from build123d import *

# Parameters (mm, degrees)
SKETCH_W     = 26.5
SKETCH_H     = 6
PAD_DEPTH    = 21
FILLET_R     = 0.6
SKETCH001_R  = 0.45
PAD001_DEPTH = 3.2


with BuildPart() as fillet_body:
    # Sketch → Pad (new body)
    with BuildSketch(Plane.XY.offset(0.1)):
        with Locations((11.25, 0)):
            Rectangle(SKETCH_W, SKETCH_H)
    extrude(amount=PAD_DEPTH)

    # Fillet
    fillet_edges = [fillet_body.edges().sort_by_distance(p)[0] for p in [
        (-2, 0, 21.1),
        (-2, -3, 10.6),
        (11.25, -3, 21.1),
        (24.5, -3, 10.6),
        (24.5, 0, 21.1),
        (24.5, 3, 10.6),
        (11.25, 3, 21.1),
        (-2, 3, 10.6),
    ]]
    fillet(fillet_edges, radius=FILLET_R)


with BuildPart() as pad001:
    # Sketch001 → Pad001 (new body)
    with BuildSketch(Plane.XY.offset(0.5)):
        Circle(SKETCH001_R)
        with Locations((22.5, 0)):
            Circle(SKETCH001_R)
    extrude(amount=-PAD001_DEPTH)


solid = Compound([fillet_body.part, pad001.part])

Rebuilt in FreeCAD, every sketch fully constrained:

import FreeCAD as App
import Part
import Sketcher


def edges_at(feature, points):
    """Names of the edges that pass closest to the given points."""
    edges = feature.Shape.Edges
    near = lambda p: min(range(len(edges)), key=lambda i: edges[i].distToShape(Part.Vertex(*p))[0])
    return sorted({f"Edge{near(p) + 1}" for p in points})

doc = App.newDocument("Part")
body = doc.addObject("PartDesign::Body", "Body")

sketch1 = body.newObject("Sketcher::SketchObject", "Sketch")
sketch1.AttachmentSupport = (doc.getObject("XY_Plane"), [""])
sketch1.MapMode = "FlatFace"
sketch1.AttachmentOffset = App.Placement(App.Vector(0, 0, 0.1), App.Rotation())
sketch1.addGeometry([
    Part.LineSegment(App.Vector(-2, 3, 0), App.Vector(-2, -3, 0)),
    Part.LineSegment(App.Vector(-2, -3, 0), App.Vector(24, -3, 0)),
    Part.LineSegment(App.Vector(24, -3, 0), App.Vector(24, 3, 0)),
    Part.LineSegment(App.Vector(24, 3, 0), App.Vector(-2, 3, 0)),
], False)
sketch1.addConstraint([
    Sketcher.Constraint("Coincident", 0, 2, 1, 1),
    Sketcher.Constraint("Coincident", 1, 2, 2, 1),
    Sketcher.Constraint("Coincident", 2, 2, 3, 1),
    Sketcher.Constraint("Coincident", 3, 2, 0, 1),
    Sketcher.Constraint("Vertical", 0),
    Sketcher.Constraint("Horizontal", 1),
    Sketcher.Constraint("Vertical", 2),
    Sketcher.Constraint("Horizontal", 3),
    Sketcher.Constraint("DistanceY", 0, 2, 0, 1, 6.0),
    Sketcher.Constraint("DistanceX", 1, 1, 1, 2, 26.5),
    Sketcher.Constraint("DistanceX", 0, 2, -1, 1, 2.0),
    Sketcher.Constraint("DistanceY", 0, 2, -1, 1, 3.0),
])
pad1 = body.newObject("PartDesign::Pad", "Pad")
pad1.Profile = sketch1
pad1.Length = 21
doc.recompute()

fillet = body.newObject("PartDesign::Fillet", "Fillet")
fillet.Base = (pad1, edges_at(pad1, [
    (-2, 0, 21.1),
    (-2, -3, 10.6),
    (11.25, -3, 21.1),
    (24.5, -3, 10.6),
    (24.5, 0, 21.1),
    (24.5, 3, 10.6),
    (11.25, 3, 21.1),
    (-2, 3, 10.6),
]))
fillet.Radius = 0.6
body2 = doc.addObject("PartDesign::Body", "Body001")
body2.AllowCompound = True

sketch2 = body2.newObject("Sketcher::SketchObject", "Sketch001")
sketch2.AttachmentSupport = (doc.getObject("XY_Plane001"), [""])
sketch2.MapMode = "FlatFace"
sketch2.AttachmentOffset = App.Placement(App.Vector(0, 0, 0.5), App.Rotation())
sketch2.addGeometry([
    Part.Circle(App.Vector(0, 0, 0), App.Vector(0, 0, 1), 0.45),
    Part.Circle(App.Vector(22.5, 0, 0), App.Vector(0, 0, 1), 0.45),
], False)
sketch2.addConstraint([
    Sketcher.Constraint("Coincident", 0, 3, -1, 1),
    Sketcher.Constraint("Equal", 0, 1),
    Sketcher.Constraint("PointOnObject", 1, 3, -1),
    Sketcher.Constraint("Diameter", 0, 0.9),
    Sketcher.Constraint("DistanceX", -1, 1, 1, 3, 22.5),
])
pad2 = body2.newObject("PartDesign::Pad", "Pad001")
pad2.Profile = sketch2
pad2.Length = 3.2
pad2.Reversed = True

doc.recompute()
